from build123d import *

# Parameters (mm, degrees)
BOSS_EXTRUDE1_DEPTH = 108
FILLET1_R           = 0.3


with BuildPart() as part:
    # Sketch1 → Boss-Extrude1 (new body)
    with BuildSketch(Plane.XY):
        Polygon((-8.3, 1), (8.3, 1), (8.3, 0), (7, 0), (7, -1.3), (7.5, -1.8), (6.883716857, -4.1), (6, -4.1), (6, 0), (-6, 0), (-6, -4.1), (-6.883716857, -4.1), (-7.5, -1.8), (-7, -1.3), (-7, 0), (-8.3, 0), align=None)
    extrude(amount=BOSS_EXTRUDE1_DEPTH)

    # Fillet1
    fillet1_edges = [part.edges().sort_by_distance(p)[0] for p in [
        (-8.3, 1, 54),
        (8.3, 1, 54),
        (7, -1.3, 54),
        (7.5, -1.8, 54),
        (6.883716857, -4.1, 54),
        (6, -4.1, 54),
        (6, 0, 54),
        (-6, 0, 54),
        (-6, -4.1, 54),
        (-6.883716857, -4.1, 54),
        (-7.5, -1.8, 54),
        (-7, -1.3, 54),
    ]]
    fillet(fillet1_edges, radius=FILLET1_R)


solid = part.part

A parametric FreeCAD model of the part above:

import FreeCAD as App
import Part
import Sketcher
Q = App.Units.Quantity


def edges_at(feature, points):
    """Names of the edges that pass closest to the given points."""
    edges = feature.Shape.Edges
    near = lambda p: min(range(len(edges)), key=lambda i: edges[i].distToShape(Part.Vertex(*p))[0])
    return sorted({f"Edge{near(p) + 1}" for p in points})


def add_polygon(sketch, points):
    """Adds a closed chain of lines whose ends are joined by coincident constraints."""
    first, n = sketch.GeometryCount, len(points)
    for a, b in zip(points, points[1:] + points[:1]):
        sketch.addGeometry(Part.LineSegment(App.Vector(*a, 0), App.Vector(*b, 0)), False)
    for i in range(n):
        sketch.addConstraint(Sketcher.Constraint("Coincident", first + i, 2, first + (i + 1) % n, 1))

doc = App.newDocument("Part")
body = doc.addObject("PartDesign::Body", "Body")

sketch1 = body.newObject("Sketcher::SketchObject", "Sketch")
sketch1.AttachmentSupport = (doc.getObject("XY_Plane"), [""])
sketch1.MapMode = "FlatFace"
add_polygon(sketch1, [(8.3, 1), (-8.3, 1), (-8.3, 0), (-7, 0), (-7, -1.3), (-7.5, -1.8), (-6.9, -4.1), (-6, -4.1), (-6, 0), (6, 0), (6, -4.1), (6.9, -4.1), (7.5, -1.8), (7, -1.3), (7, 0), (8.3, 0)])
sketch1.addConstraint([
    Sketcher.Constraint("Horizontal", 0),
    Sketcher.Constraint("Vertical", 1),
    Sketcher.Constraint("Horizontal", 2),
    Sketcher.Constraint("Vertical", 3),
    Sketcher.Constraint("Horizontal", 6),
    Sketcher.Constraint("Vertical", 7),
    Sketcher.Constraint("Horizontal", 8),
    Sketcher.Constraint("Vertical", 9),
    Sketcher.Constraint("Horizontal", 10),
    Sketcher.Constraint("Vertical", 13),
    Sketcher.Constraint("Horizontal", 14),
    Sketcher.Constraint("Vertical", 15),
    Sketcher.Constraint("Symmetric", 7, 2, 8, 2, -1, 1),
    Sketcher.Constraint("Symmetric", 2, 2, 13, 2, -1, 1),
    Sketcher.Constraint("Symmetric", 5, 2, 10, 2, -2),
    Sketcher.Constraint("Symmetric", 4, 2, 11, 2, -2),
    Sketcher.Constraint("Symmetric", 1, 2, 14, 2, -2),
    Sketcher.Constraint("Perpendicular", 4, 12),
    Sketcher.Constraint("Horizontal", 3, 2, 12, 2),
    Sketcher.Constraint("Equal", 14, 3),
    Sketcher.Constraint("DistanceX", 8, 1, 8, 2, 12.0),
    Sketcher.Constraint("DistanceY", 1, 2, 1, 1, 1.0),
    Sketcher.Constraint("Angle", 5, Q("-75 deg")),
    Sketcher.Constraint("DistanceX", 0, 2, 0, 1, 16.6),
    Sketcher.Constraint("DistanceX", 2, 1, 2, 2, 1.3),
    Sketcher.Constraint("DistanceY", 7, 1, 7, 2, 4.1),
    Sketcher.Constraint("DistanceX", 4, 2, -1, 1, 7.5),
])
pad1 = body.newObject("PartDesign::Pad", "Pad")
pad1.Profile = sketch1
pad1.Length = 108
doc.recompute()

fillet = body.newObject("PartDesign::Fillet", "Fillet")
fillet.Base = (pad1, edges_at(pad1, [
    (-8.3, 1, 54),
    (8.3, 1, 54),
    (7, -1.3, 54),
    (7.5, -1.8, 54),
    (6.884, -4.1, 54),
    (6, -4.1, 54),
    (6, 0, 54),
    (-6, 0, 54),
    (-6, -4.1, 54),
    (-6.884, -4.1, 54),
    (-7.5, -1.8, 54),
    (-7, -1.3, 54),
]))
fillet.Radius = 0.3

doc.recompute()
